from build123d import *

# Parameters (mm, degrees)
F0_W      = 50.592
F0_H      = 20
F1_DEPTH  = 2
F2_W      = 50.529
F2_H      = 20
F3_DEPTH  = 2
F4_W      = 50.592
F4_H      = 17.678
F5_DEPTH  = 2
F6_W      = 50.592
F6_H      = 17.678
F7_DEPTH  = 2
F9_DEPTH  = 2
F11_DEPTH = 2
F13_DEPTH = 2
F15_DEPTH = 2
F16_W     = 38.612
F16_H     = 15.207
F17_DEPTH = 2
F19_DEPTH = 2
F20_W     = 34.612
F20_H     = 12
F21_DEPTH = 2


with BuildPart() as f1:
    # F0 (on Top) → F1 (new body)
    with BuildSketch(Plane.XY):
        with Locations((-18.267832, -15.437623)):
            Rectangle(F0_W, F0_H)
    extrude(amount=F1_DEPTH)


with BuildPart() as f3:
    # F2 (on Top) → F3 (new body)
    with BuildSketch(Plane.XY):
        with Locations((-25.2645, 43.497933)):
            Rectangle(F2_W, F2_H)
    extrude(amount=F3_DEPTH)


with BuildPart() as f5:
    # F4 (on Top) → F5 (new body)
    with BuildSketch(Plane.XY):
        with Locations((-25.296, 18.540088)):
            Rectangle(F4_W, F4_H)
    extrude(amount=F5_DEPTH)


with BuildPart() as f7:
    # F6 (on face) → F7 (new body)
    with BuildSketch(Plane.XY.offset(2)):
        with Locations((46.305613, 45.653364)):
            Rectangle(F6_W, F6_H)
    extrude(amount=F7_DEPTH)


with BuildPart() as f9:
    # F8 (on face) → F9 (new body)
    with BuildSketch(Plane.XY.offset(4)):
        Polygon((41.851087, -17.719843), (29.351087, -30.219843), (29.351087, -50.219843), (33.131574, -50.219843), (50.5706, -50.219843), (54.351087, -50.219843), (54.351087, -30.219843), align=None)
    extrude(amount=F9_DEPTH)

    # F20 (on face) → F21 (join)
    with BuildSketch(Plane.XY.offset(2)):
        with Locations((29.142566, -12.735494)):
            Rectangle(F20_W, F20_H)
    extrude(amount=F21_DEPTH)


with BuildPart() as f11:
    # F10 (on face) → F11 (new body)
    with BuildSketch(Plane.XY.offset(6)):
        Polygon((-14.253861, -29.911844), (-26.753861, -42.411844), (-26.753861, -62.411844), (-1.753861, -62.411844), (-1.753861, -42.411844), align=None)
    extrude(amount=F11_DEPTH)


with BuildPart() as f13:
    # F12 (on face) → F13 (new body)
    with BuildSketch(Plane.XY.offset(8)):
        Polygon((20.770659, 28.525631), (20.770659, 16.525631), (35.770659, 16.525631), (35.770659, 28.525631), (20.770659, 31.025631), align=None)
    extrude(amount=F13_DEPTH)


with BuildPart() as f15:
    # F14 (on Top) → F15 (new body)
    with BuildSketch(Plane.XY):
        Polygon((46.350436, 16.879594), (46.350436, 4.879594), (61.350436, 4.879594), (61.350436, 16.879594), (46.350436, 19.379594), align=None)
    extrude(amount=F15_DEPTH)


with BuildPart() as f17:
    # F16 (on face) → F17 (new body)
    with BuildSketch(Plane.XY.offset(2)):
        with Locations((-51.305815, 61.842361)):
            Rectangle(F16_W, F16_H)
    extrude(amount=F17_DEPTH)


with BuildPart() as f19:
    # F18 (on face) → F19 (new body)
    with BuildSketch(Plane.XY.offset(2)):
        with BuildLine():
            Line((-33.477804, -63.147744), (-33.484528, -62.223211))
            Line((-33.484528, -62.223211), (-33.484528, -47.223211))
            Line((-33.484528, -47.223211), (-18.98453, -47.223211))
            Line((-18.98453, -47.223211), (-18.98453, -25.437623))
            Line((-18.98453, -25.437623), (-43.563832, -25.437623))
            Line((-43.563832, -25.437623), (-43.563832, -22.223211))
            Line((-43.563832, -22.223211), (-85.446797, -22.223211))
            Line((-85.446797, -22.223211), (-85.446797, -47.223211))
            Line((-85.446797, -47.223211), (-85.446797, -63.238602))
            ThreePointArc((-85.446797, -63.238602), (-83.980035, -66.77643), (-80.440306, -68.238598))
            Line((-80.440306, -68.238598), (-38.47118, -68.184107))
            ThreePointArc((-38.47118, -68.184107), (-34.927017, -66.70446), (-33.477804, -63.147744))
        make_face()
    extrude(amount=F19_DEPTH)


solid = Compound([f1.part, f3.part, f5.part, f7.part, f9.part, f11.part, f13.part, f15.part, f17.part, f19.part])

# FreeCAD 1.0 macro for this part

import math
import FreeCAD as App
import Part
import Sketcher
from FreeCAD import Vector


def add_polygon(sketch, points):
    """Adds a closed chain of lines whose ends are joined by coincident constraints."""
    first, n = sketch.GeometryCount, len(points)
    for a, b in zip(points, points[1:] + points[:1]):
        sketch.addGeometry(Part.LineSegment(App.Vector(*a, 0), App.Vector(*b, 0)), False)
    for i in range(n):
        sketch.addConstraint(Sketcher.Constraint("Coincident", first + i, 2, first + (i + 1) % n, 1))

doc = App.newDocument("Part")
body = doc.addObject("PartDesign::Body", "Body")

sketch1 = doc.addObject("Sketcher::SketchObject", "Sketch")
body.addObject(sketch1)
sketch1.AttachmentSupport = (doc.XY_Plane, [""])
sketch1.MapMode = "FlatFace"
add_polygon(sketch1, [(-43.563832, -5.437623), (-43.563832, -25.437623), (7.028168, -25.437623), (7.028168, -5.437623)])
sketch1.addConstraint(Sketcher.Constraint("Vertical", 0))
sketch1.addConstraint(Sketcher.Constraint("Horizontal", 1))
sketch1.addConstraint(Sketcher.Constraint("Vertical", 2))
sketch1.addConstraint(Sketcher.Constraint("Horizontal", 3))
sketch1.addConstraint(Sketcher.Constraint("DistanceY", 0, 2, 0, 1, 20.0))
sketch1.addConstraint(Sketcher.Constraint("DistanceX", 1, 1, 1, 2, 50.592))
sketch1.addConstraint(Sketcher.Constraint("DistanceX", 0, 2, -1, 1, 43.563832))
sketch1.addConstraint(Sketcher.Constraint("DistanceY", 0, 2, -1, 1, 25.437623))
pad1 = doc.addObject("PartDesign::Pad", "Pad")
body.addObject(pad1)
pad1.Profile = sketch1
pad1.Length = 2
body2 = doc.addObject("PartDesign::Body", "Body001")

sketch2 = doc.addObject("Sketcher::SketchObject", "Sketch001")
body2.addObject(sketch2)
sketch2.AttachmentSupport = (doc.getObject("XY_Plane001"), [""])
sketch2.MapMode = "FlatFace"
add_polygon(sketch2, [(-50.529, 53.497933), (-50.529, 33.497933), (0, 33.497933), (0, 53.497933)])
sketch2.addConstraint(Sketcher.Constraint("Vertical", 0))
sketch2.addConstraint(Sketcher.Constraint("Horizontal", 1))
sketch2.addConstraint(Sketcher.Constraint("Vertical", 2))
sketch2.addConstraint(Sketcher.Constraint("Horizontal", 3))
sketch2.addConstraint(Sketcher.Constraint("PointOnObject", 1, 2, -2))
sketch2.addConstraint(Sketcher.Constraint("DistanceY", 0, 2, 0, 1, 20.0))
sketch2.addConstraint(Sketcher.Constraint("DistanceX", 1, 1, 1, 2, 50.529))
sketch2.addConstraint(Sketcher.Constraint("DistanceY", -1, 1, 0, 2, 33.497933))
pad2 = doc.addObject("PartDesign::Pad", "Pad001")
body2.addObject(pad2)
pad2.Profile = sketch2
pad2.Length = 2
body3 = doc.addObject("PartDesign::Body", "Body002")

sketch3 = doc.addObject("Sketcher::SketchObject", "Sketch002")
body3.addObject(sketch3)
sketch3.AttachmentSupport = (doc.getObject("XY_Plane002"), [""])
sketch3.MapMode = "FlatFace"
add_polygon(sketch3, [(-50.592, 27.379088), (-50.592, 9.701088), (0, 9.701088), (0, 27.379088)])
sketch3.addConstraint(Sketcher.Constraint("Vertical", 0))
sketch3.addConstraint(Sketcher.Constraint("Horizontal", 1))
sketch3.addConstraint(Sketcher.Constraint("Vertical", 2))
sketch3.addConstraint(Sketcher.Constraint("Horizontal", 3))
sketch3.addConstraint(Sketcher.Constraint("PointOnObject", 1, 2, -2))
sketch3.addConstraint(Sketcher.Constraint("DistanceX", 1, 1, 1, 2, 50.592))
sketch3.addConstraint(Sketcher.Constraint("DistanceY", 0, 2, 0, 1, 17.678))
sketch3.addConstraint(Sketcher.Constraint("DistanceY", -1, 1, 0, 2, 9.701088))
pad3 = doc.addObject("PartDesign::Pad", "Pad002")
body3.addObject(pad3)
pad3.Profile = sketch3
pad3.Length = 2
body4 = doc.addObject("PartDesign::Body", "Body003")

sketch4 = doc.addObject("Sketcher::SketchObject", "Sketch003")
body4.addObject(sketch4)
sketch4.AttachmentSupport = (doc.getObject("XY_Plane003"), [""])
sketch4.MapMode = "FlatFace"
sketch4.AttachmentOffset = App.Placement(Vector(0, 0, 2), App.Rotation())
add_polygon(sketch4, [(21.009613, 54.492364), (21.009613, 36.814364), (71.601613, 36.814364), (71.601613, 54.492364)])
sketch4.addConstraint(Sketcher.Constraint("Vertical", 0))
sketch4.addConstraint(Sketcher.Constraint("Horizontal", 1))
sketch4.addConstraint(Sketcher.Constraint("Vertical", 2))
sketch4.addConstraint(Sketcher.Constraint("Horizontal", 3))
sketch4.addConstraint(Sketcher.Constraint("DistanceX", 1, 1, 1, 2, 50.592))
sketch4.addConstraint(Sketcher.Constraint("DistanceY", 0, 2, 0, 1, 17.678))
sketch4.addConstraint(Sketcher.Constraint("DistanceX", -1, 1, 0, 2, 21.009613))
sketch4.addConstraint(Sketcher.Constraint("DistanceY", -1, 1, 0, 2, 36.814364))
pad4 = doc.addObject("PartDesign::Pad", "Pad003")
body4.addObject(pad4)
pad4.Profile = sketch4
pad4.Length = 2
body5 = doc.addObject("PartDesign::Body", "Body004")

sketch5 = doc.addObject("Sketcher::SketchObject", "Sketch004")
body5.addObject(sketch5)
sketch5.AttachmentSupport = (doc.getObject("XY_Plane004"), [""])
sketch5.MapMode = "FlatFace"
sketch5.AttachmentOffset = App.Placement(Vector(0, 0, 4), App.Rotation())
add_polygon(sketch5, [(41.851087, -17.719843), (29.351087, -30.219843), (29.351087, -50.219843), (54.351087, -50.219843), (54.351087, -30.219843)])
sketch5.addConstraint(Sketcher.Constraint("Vertical", 1))
sketch5.addConstraint(Sketcher.Constraint("Horizontal", 2))
sketch5.addConstraint(Sketcher.Constraint("Vertical", 3))
sketch5.addConstraint(Sketcher.Constraint("Perpendicular", 0, 4))
sketch5.addConstraint(Sketcher.Constraint("Horizontal", 0, 2, 3, 2))
sketch5.addConstraint(Sketcher.Constraint("Equal", 0, 4))
sketch5.addConstraint(Sketcher.Constraint("DistanceX", 2, 1, 2, 2, 25.0))
sketch5.addConstraint(Sketcher.Constraint("DistanceY", 1, 2, 1, 1, 20.0))
sketch5.addConstraint(Sketcher.Constraint("DistanceX", -1, 1, 0, 2, 29.351087))
sketch5.addConstraint(Sketcher.Constraint("DistanceY", 0, 2, -1, 1, 30.219843))
pad5 = doc.addObject("PartDesign::Pad", "Pad004")
body5.addObject(pad5)
pad5.Profile = sketch5
pad5.Length = 2

sketch6 = doc.addObject("Sketcher::SketchObject", "Sketch005")
body5.addObject(sketch6)
sketch6.AttachmentSupport = (doc.getObject("XY_Plane004"), [""])
sketch6.MapMode = "FlatFace"
sketch6.AttachmentOffset = App.Placement(Vector(0, 0, 2), App.Rotation())
add_polygon(sketch6, [(11.836566, -6.735494), (11.836566, -18.735494), (46.448566, -18.735494), (46.448566, -6.735494)])
sketch6.addConstraint(Sketcher.Constraint("Vertical", 0))
sketch6.addConstraint(Sketcher.Constraint("Horizontal", 1))
sketch6.addConstraint(Sketcher.Constraint("Vertical", 2))
sketch6.addConstraint(Sketcher.Constraint("Horizontal", 3))
sketch6.addConstraint(Sketcher.Constraint("DistanceY", 0, 2, 0, 1, 12.0))
sketch6.addConstraint(Sketcher.Constraint("DistanceX", 1, 1, 1, 2, 34.612))
sketch6.addConstraint(Sketcher.Constraint("DistanceX", -1, 1, 0, 2, 11.836566))
sketch6.addConstraint(Sketcher.Constraint("DistanceY", 0, 2, -1, 1, 18.735494))
pad6 = doc.addObject("PartDesign::Pad", "Pad005")
body5.addObject(pad6)
pad6.Profile = sketch6
pad6.Length = 2
body6 = doc.addObject("PartDesign::Body", "Body005")

sketch7 = doc.addObject("Sketcher::SketchObject", "Sketch006")
body6.addObject(sketch7)
sketch7.AttachmentSupport = (doc.getObject("XY_Plane005"), [""])
sketch7.MapMode = "FlatFace"
sketch7.AttachmentOffset = App.Placement(Vector(0, 0, 6), App.Rotation())
add_polygon(sketch7, [(-14.253861, -29.911844), (-26.753861, -42.411844), (-26.753861, -62.411844), (-1.753861, -62.411844), (-1.753861, -42.411844)])
sketch7.addConstraint(Sketcher.Constraint("Vertical", 1))
sketch7.addConstraint(Sketcher.Constraint("Horizontal", 2))
sketch7.addConstraint(Sketcher.Constraint("Vertical", 3))
sketch7.addConstraint(Sketcher.Constraint("Perpendicular", 0, 4))
sketch7.addConstraint(Sketcher.Constraint("Horizontal", 0, 2, 3, 2))
sketch7.addConstraint(Sketcher.Constraint("Equal", 0, 4))
sketch7.addConstraint(Sketcher.Constraint("DistanceX", 2, 1, 2, 2, 25.0))
sketch7.addConstraint(Sketcher.Constraint("DistanceY", 1, 2, 1, 1, 20.0))
sketch7.addConstraint(Sketcher.Constraint("DistanceX", 0, 2, -1, 1, 26.753861))
sketch7.addConstraint(Sketcher.Constraint("DistanceY", 0, 2, -1, 1, 42.411844))
pad7 = doc.addObject("PartDesign::Pad", "Pad006")
body6.addObject(pad7)
pad7.Profile = sketch7
pad7.Length = 2
body7 = doc.addObject("PartDesign::Body", "Body006")

sketch8 = doc.addObject("Sketcher::SketchObject", "Sketch007")
body7.addObject(sketch8)
sketch8.AttachmentSupport = (doc.getObject("XY_Plane006"), [""])
sketch8.MapMode = "FlatFace"
sketch8.AttachmentOffset = App.Placement(Vector(0, 0, 8), App.Rotation())
add_polygon(sketch8, [(20.770659, 16.525631), (35.770659, 16.525631), (35.770659, 28.525631), (20.770659, 31.025631)])
sketch8.addConstraint(Sketcher.Constraint("Horizontal", 0))
sketch8.addConstraint(Sketcher.Constraint("Vertical", 1))
sketch8.addConstraint(Sketcher.Constraint("Vertical", 3))
sketch8.addConstraint(Sketcher.Constraint("DistanceX", 0, 1, 0, 2, 15.0))
sketch8.addConstraint(Sketcher.Constraint("DistanceY", 1, 1, 1, 2, 12.0))
sketch8.addConstraint(Sketcher.Constraint("DistanceY", 3, 2, 3, 1, 14.5))
sketch8.addConstraint(Sketcher.Constraint("DistanceX", -1, 1, 0, 2, 35.770659))
sketch8.addConstraint(Sketcher.Constraint("DistanceY", -1, 1, 0, 2, 16.525631))
pad8 = doc.addObject("PartDesign::Pad", "Pad007")
body7.addObject(pad8)
pad8.Profile = sketch8
pad8.Length = 2
body8 = doc.addObject("PartDesign::Body", "Body007")

sketch9 = doc.addObject("Sketcher::SketchObject", "Sketch008")
body8.addObject(sketch9)
sketch9.AttachmentSupport = (doc.getObject("XY_Plane007"), [""])
sketch9.MapMode = "FlatFace"
add_polygon(sketch9, [(46.350436, 4.879594), (61.350436, 4.879594), (61.350436, 16.879594), (46.350436, 19.379594)])
sketch9.addConstraint(Sketcher.Constraint("Horizontal", 0))
sketch9.addConstraint(Sketcher.Constraint("Vertical", 1))
sketch9.addConstraint(Sketcher.Constraint("Vertical", 3))
sketch9.addConstraint(Sketcher.Constraint("DistanceX", 0, 1, 0, 2, 15.0))
sketch9.addConstraint(Sketcher.Constraint("DistanceY", 1, 1, 1, 2, 12.0))
sketch9.addConstraint(Sketcher.Constraint("DistanceY", 3, 2, 3, 1, 14.5))
sketch9.addConstraint(Sketcher.Constraint("DistanceX", -1, 1, 0, 2, 61.350436))
sketch9.addConstraint(Sketcher.Constraint("DistanceY", -1, 1, 0, 2, 4.879594))
pad9 = doc.addObject("PartDesign::Pad", "Pad008")
body8.addObject(pad9)
pad9.Profile = sketch9
pad9.Length = 2
body9 = doc.addObject("PartDesign::Body", "Body008")

sketch10 = doc.addObject("Sketcher::SketchObject", "Sketch009")
body9.addObject(sketch10)
sketch10.AttachmentSupport = (doc.getObject("XY_Plane008"), [""])
sketch10.MapMode = "FlatFace"
sketch10.AttachmentOffset = App.Placement(Vector(0, 0, 2), App.Rotation())
add_polygon(sketch10, [(-70.611815, 69.445861), (-70.611815, 54.238861), (-31.999815, 54.238861), (-31.999815, 69.445861)])
sketch10.addConstraint(Sketcher.Constraint("Vertical", 0))
sketch10.addConstraint(Sketcher.Constraint("Horizontal", 1))
sketch10.addConstraint(Sketcher.Constraint("Vertical", 2))
sketch10.addConstraint(Sketcher.Constraint("Horizontal", 3))
sketch10.addConstraint(Sketcher.Constraint("DistanceX", 1, 1, 1, 2, 38.612))
sketch10.addConstraint(Sketcher.Constraint("DistanceY", 0, 2, 0, 1, 15.207))
sketch10.addConstraint(Sketcher.Constraint("DistanceY", -1, 1, 0, 2, 54.238861))
sketch10.addConstraint(Sketcher.Constraint("DistanceX", 0, 2, -1, 1, 70.611815))
pad10 = doc.addObject("PartDesign::Pad", "Pad009")
body9.addObject(pad10)
pad10.Profile = sketch10
pad10.Length = 2
body10 = doc.addObject("PartDesign::Body", "Body009")

sketch11 = doc.addObject("Sketcher::SketchObject", "Sketch010")
body10.addObject(sketch11)
sketch11.AttachmentSupport = (doc.getObject("XY_Plane009"), [""])
sketch11.MapMode = "FlatFace"
sketch11.AttachmentOffset = App.Placement(Vector(0, 0, 2), App.Rotation())
sketch11.addGeometry(Part.LineSegment(Vector(-33.477804, -63.147744, 0), Vector(-33.484528, -62.223211, 0)), False)
sketch11.addGeometry(Part.LineSegment(Vector(-33.484528, -62.223211, 0), Vector(-33.484528, -47.223211, 0)), False)
sketch11.addGeometry(Part.LineSegment(Vector(-33.484528, -47.223211, 0), Vector(-18.98453, -47.223211, 0)), False)
sketch11.addGeometry(Part.LineSegment(Vector(-18.98453, -47.223211, 0), Vector(-18.98453, -25.437623, 0)), False)
sketch11.addGeometry(Part.LineSegment(Vector(-18.98453, -25.437623, 0), Vector(-43.563832, -25.437623, 0)), False)
sketch11.addGeometry(Part.LineSegment(Vector(-43.563832, -25.437623, 0), Vector(-43.563832, -22.223211, 0)), False)
sketch11.addGeometry(Part.LineSegment(Vector(-43.563832, -22.223211, 0), Vector(-85.446797, -22.223211, 0)), False)
sketch11.addGeometry(Part.LineSegment(Vector(-85.446797, -22.223211, 0), Vector(-85.446797, -63.238602, 0)), False)
sketch11.addGeometry(Part.ArcOfCircle(Part.Circle(Vector(-80.446796, -63.238601, 0), Vector(0, 0, 1), 5.000001), math.radians(-179.999992), math.radians(-89.925629)), False)
sketch11.addGeometry(Part.LineSegment(Vector(-80.440306, -68.238598, 0), Vector(-38.47118, -68.184107, 0)), False)
sketch11.addGeometry(Part.ArcOfCircle(Part.Circle(Vector(-38.477671, -63.184112, 0), Vector(0, 0, 1), 4.999999), math.radians(-89.925623), math.radians(0.416754)), False)
sketch11.addConstraint(Sketcher.Constraint("Coincident", 0, 2, 1, 1))
sketch11.addConstraint(Sketcher.Constraint("Coincident", 1, 2, 2, 1))
sketch11.addConstraint(Sketcher.Constraint("Coincident", 2, 2, 3, 1))
sketch11.addConstraint(Sketcher.Constraint("Coincident", 3, 2, 4, 1))
sketch11.addConstraint(Sketcher.Constraint("Coincident", 4, 2, 5, 1))
sketch11.addConstraint(Sketcher.Constraint("Coincident", 5, 2, 6, 1))
sketch11.addConstraint(Sketcher.Constraint("Coincident", 6, 2, 7, 1))
sketch11.addConstraint(Sketcher.Constraint("Tangent", 7, 2, 8, 1))
sketch11.addConstraint(Sketcher.Constraint("Tangent", 8, 2, 9, 1))
sketch11.addConstraint(Sketcher.Constraint("Tangent", 9, 2, 10, 1))
sketch11.addConstraint(Sketcher.Constraint("Tangent", 10, 2, 0, 1))
sketch11.addConstraint(Sketcher.Constraint("Vertical", 1))
sketch11.addConstraint(Sketcher.Constraint("Horizontal", 2))
sketch11.addConstraint(Sketcher.Constraint("Vertical", 3))
sketch11.addConstraint(Sketcher.Constraint("Horizontal", 4))
sketch11.addConstraint(Sketcher.Constraint("Vertical", 5))
sketch11.addConstraint(Sketcher.Constraint("Horizontal", 6))
sketch11.addConstraint(Sketcher.Constraint("Vertical", 7))
sketch11.addConstraint(Sketcher.Constraint("Radius", 8, 5.000001))
sketch11.addConstraint(Sketcher.Constraint("Radius", 10, 4.999999))
sketch11.addConstraint(Sketcher.Constraint("DistanceY", 1, 1, 1, 2, 15.0))
sketch11.addConstraint(Sketcher.Constraint("DistanceY", 1, 2, 5, 2, 25.0))
sketch11.addConstraint(Sketcher.Constraint("DistanceX", 4, 2, 4, 1, 24.579302))
sketch11.addConstraint(Sketcher.Constraint("DistanceY", 3, 1, 3, 2, 21.785588))
sketch11.addConstraint(Sketcher.Constraint("DistanceY", 7, 2, 7, 1, 41.015391))
sketch11.addConstraint(Sketcher.Constraint("DistanceY", 8, 3, -1, 1, 63.238601))
sketch11.addConstraint(Sketcher.Constraint("DistanceY", 10, 3, 0, 2, 0.960901))
sketch11.addConstraint(Sketcher.Constraint("Distance", 9, 41.969161))
sketch11.addConstraint(Sketcher.Constraint("DistanceX", 2, 1, 2, 2, 14.499998))
sketch11.addConstraint(Sketcher.Constraint("DistanceX", 6, 2, 6, 1, 41.882965))
sketch11.addConstraint(Sketcher.Constraint("DistanceX", 10, 3, -1, 1, 38.477671))
pad11 = doc.addObject("PartDesign::Pad", "Pad010")
body10.addObject(pad11)
pad11.Profile = sketch11
pad11.Length = 2

doc.recompute()
